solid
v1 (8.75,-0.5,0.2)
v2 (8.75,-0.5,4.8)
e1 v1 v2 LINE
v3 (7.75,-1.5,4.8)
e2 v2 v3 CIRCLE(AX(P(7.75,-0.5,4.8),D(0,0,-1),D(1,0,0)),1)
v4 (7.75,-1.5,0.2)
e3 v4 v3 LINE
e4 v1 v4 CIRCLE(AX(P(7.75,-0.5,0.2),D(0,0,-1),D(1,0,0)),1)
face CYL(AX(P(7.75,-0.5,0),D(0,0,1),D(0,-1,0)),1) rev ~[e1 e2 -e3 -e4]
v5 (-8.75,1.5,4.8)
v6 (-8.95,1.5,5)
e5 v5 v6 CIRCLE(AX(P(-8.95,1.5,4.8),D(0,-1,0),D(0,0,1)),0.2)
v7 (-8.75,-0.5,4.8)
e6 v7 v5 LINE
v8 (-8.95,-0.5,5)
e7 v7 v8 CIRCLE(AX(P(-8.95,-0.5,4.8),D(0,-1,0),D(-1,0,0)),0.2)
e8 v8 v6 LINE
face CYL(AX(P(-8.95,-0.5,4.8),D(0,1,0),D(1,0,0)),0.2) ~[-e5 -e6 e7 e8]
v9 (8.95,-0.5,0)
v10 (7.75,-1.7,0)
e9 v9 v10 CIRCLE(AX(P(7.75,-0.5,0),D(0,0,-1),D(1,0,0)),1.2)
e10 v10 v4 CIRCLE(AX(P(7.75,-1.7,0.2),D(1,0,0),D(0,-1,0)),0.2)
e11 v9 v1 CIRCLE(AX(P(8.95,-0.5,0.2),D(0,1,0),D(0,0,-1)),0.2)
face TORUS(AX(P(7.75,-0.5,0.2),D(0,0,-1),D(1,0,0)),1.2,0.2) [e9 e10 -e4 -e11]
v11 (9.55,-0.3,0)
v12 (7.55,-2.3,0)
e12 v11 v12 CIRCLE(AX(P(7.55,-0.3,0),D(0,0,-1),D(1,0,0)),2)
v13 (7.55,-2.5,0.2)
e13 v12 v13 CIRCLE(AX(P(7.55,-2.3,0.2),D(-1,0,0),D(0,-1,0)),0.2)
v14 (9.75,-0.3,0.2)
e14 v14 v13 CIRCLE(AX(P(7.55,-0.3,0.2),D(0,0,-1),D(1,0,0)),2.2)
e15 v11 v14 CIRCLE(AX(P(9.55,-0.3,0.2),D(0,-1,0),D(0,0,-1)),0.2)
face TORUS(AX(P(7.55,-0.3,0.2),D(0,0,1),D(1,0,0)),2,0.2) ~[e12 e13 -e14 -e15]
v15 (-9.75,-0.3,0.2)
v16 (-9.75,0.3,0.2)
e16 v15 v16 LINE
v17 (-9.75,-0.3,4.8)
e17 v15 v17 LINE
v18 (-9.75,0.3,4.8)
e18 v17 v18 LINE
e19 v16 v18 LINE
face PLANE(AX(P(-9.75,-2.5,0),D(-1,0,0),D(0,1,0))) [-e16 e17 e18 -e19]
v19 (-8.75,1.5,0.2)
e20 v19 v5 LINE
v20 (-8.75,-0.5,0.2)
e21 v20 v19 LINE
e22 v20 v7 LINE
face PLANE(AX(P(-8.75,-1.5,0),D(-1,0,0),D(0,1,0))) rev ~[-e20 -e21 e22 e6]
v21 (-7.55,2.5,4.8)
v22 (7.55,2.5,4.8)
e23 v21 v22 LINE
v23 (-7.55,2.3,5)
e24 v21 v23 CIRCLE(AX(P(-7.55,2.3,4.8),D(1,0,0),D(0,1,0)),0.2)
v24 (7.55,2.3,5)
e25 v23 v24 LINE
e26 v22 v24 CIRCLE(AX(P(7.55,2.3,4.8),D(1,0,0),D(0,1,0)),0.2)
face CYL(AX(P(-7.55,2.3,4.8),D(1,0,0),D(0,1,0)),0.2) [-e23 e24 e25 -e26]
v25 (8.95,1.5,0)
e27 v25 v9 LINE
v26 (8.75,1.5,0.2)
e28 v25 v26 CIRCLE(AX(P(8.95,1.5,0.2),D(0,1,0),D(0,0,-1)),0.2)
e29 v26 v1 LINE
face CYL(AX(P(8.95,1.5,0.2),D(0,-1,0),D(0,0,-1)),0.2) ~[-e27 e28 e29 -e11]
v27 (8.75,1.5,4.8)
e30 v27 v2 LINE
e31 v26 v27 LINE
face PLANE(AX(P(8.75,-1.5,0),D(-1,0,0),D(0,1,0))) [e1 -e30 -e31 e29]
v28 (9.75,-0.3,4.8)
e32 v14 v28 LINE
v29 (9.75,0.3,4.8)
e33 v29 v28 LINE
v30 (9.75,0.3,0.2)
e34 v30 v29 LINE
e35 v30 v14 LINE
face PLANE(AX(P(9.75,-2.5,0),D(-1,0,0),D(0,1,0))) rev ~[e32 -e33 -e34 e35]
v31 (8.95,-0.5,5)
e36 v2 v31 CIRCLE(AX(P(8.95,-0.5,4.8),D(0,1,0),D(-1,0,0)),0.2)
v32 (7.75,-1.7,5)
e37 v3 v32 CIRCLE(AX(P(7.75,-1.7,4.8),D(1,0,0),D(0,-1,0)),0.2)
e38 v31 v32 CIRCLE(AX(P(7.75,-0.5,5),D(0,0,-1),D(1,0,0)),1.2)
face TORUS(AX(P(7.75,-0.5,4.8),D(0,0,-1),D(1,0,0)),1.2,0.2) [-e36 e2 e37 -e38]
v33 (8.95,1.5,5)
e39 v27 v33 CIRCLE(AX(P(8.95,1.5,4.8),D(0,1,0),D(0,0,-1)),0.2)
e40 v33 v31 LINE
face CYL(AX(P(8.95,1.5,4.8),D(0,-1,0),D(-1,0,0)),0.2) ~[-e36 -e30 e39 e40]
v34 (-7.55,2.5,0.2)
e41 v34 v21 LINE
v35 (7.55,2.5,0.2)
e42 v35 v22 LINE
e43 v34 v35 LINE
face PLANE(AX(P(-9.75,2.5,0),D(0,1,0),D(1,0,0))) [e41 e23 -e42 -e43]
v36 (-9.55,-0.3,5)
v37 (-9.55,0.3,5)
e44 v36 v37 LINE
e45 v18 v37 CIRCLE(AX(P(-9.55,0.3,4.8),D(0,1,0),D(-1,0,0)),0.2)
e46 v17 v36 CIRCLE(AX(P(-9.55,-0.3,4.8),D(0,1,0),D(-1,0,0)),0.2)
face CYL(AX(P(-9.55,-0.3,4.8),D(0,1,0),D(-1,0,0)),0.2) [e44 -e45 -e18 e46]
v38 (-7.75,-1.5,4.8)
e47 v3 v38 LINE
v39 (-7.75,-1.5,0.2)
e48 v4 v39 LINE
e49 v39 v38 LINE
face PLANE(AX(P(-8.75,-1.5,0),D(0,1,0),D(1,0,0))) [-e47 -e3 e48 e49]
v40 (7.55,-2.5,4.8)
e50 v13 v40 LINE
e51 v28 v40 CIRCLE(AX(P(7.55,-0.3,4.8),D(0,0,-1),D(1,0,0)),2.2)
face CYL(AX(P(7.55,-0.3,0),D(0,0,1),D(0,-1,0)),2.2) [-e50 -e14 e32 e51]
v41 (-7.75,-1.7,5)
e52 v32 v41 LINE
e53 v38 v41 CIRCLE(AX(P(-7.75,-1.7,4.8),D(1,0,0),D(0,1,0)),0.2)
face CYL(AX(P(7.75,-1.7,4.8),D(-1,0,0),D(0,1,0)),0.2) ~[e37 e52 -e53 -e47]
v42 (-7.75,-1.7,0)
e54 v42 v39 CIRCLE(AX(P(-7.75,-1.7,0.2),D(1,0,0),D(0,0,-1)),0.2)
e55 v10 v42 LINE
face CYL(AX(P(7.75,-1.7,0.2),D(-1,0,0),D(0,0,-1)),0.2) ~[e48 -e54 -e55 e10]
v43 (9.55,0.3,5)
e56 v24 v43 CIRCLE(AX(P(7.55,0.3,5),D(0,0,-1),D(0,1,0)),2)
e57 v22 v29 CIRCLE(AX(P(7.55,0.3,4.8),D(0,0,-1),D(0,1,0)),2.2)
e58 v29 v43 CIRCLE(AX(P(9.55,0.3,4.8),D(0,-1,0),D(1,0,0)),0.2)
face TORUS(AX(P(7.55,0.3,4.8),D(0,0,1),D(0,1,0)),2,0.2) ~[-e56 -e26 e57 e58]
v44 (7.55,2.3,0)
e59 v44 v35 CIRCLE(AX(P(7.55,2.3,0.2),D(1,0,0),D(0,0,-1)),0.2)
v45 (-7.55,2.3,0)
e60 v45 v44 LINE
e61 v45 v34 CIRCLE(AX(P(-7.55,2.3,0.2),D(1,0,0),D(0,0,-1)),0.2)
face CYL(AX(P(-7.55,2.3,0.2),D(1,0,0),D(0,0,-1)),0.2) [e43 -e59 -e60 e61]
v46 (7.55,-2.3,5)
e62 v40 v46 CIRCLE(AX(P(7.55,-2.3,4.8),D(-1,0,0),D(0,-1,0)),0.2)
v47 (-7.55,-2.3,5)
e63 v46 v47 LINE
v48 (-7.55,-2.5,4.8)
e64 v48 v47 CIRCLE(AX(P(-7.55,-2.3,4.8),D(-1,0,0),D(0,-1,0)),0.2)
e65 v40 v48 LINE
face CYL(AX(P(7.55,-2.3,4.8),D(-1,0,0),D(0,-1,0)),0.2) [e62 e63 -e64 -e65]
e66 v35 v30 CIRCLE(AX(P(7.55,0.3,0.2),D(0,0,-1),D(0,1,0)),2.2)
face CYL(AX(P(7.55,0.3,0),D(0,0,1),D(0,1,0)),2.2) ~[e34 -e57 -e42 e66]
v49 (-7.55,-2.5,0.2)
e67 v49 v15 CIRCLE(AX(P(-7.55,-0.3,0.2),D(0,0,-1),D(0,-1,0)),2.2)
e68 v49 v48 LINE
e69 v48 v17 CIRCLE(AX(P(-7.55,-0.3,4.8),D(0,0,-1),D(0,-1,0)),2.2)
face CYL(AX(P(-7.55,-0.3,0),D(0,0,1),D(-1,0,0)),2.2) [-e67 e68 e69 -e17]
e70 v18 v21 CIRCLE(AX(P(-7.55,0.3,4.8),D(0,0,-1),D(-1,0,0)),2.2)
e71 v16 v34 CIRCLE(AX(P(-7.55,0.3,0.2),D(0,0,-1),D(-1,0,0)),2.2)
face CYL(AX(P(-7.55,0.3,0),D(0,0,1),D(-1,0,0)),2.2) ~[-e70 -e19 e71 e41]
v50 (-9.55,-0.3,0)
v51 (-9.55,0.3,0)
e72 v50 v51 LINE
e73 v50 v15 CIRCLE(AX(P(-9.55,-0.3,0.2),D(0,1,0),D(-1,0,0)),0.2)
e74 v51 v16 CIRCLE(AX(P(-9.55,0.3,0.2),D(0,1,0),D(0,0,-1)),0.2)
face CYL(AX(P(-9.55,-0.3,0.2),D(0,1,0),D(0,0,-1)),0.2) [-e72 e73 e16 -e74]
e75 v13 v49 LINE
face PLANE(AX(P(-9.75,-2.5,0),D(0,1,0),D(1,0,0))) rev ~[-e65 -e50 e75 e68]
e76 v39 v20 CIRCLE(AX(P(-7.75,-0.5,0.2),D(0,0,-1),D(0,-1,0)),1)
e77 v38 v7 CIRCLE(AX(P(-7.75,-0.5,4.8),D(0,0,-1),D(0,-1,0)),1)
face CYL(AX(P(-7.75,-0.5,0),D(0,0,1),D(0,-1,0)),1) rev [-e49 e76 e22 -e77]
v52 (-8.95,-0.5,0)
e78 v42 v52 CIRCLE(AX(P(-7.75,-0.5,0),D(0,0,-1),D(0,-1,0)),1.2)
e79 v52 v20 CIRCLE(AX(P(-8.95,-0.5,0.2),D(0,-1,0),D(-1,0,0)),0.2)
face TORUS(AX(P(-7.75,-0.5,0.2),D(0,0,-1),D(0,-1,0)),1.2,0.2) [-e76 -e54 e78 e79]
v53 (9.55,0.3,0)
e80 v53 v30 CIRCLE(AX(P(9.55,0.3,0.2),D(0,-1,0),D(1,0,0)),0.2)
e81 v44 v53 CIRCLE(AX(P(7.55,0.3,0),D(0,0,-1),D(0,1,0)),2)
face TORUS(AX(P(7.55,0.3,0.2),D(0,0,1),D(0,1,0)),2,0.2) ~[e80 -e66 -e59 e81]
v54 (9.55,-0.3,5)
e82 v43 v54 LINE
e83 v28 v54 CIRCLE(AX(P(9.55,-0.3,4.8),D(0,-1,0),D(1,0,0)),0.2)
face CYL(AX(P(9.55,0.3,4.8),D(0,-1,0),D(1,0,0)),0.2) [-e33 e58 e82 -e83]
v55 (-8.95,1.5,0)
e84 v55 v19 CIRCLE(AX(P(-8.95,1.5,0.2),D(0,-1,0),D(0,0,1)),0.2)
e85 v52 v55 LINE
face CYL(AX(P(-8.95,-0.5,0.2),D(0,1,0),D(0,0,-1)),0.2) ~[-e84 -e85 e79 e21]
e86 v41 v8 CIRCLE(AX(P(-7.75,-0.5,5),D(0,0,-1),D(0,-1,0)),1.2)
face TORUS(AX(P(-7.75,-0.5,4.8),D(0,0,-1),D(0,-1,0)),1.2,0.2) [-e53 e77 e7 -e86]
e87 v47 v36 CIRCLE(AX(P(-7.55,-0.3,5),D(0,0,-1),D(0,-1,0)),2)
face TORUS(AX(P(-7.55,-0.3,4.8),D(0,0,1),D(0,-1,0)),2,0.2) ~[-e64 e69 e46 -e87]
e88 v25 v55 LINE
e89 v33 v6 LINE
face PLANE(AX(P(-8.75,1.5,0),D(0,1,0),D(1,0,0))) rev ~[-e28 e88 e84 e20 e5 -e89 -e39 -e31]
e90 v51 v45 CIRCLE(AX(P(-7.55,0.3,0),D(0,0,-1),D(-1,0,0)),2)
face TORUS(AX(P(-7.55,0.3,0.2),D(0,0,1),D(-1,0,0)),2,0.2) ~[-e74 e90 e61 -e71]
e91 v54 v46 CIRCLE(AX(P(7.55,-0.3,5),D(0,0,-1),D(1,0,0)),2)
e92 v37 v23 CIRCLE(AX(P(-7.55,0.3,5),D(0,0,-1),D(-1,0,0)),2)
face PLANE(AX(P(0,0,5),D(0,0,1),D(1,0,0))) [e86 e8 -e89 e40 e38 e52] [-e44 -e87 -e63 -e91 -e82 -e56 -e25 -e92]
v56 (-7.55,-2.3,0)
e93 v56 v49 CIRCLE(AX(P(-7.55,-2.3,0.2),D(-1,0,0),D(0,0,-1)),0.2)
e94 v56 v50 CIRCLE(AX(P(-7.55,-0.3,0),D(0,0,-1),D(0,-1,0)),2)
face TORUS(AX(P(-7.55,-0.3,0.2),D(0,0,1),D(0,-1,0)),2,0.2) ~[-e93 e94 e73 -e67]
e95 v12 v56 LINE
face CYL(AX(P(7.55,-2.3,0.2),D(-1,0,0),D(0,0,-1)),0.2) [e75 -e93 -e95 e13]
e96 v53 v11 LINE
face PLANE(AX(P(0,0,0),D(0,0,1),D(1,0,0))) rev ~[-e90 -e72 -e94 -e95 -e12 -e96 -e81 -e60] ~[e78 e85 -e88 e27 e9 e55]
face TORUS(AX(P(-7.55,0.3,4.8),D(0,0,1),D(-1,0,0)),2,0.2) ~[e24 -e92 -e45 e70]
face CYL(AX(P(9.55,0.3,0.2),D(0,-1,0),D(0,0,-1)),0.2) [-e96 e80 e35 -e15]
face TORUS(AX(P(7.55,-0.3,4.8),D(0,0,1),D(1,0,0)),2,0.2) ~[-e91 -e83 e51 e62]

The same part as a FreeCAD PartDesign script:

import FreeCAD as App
import Part
import Sketcher
from FreeCAD import Vector


def edges_at(feature, points):
    """Names of the edges that pass closest to the given points."""
    edges = feature.Shape.Edges
    near = lambda p: min(range(len(edges)), key=lambda i: edges[i].distToShape(Part.Vertex(*p))[0])
    return sorted({f"Edge{near(p) + 1}" for p in points})


def add_polygon(sketch, points):
    """Adds a closed chain of lines whose ends are joined by coincident constraints."""
    first, n = sketch.GeometryCount, len(points)
    for a, b in zip(points, points[1:] + points[:1]):
        sketch.addGeometry(Part.LineSegment(App.Vector(*a, 0), App.Vector(*b, 0)), False)
    for i in range(n):
        sketch.addConstraint(Sketcher.Constraint("Coincident", first + i, 2, first + (i + 1) % n, 1))

doc = App.newDocument("Part")
params = doc.addObject("Spreadsheet::Sheet", "Params")
for row, (alias, value) in enumerate([
    ("sketch1_height", "5 mm"),
    ("sketch1_height2", "3 mm"),
    ("sketch1_width", "19.5 mm"),
    ("sketch1_width2", "17.5 mm"),
    ("pad1_length", "5 mm"),
    ("fillet_radius", "2.2 mm"),
    ("fillet2_radius", "1 mm"),
    ("fillet3_radius", "0.2 mm"),
], start=1):
    params.set(f"A{row}", alias)
    params.set(f"B{row}", "=" + value)
    params.setAlias(f"B{row}", alias)

body = doc.addObject("PartDesign::Body", "Body")

# Sketch on XY plane
sketch1 = body.newObject("Sketcher::SketchObject", "Sketch")
sketch1.AttachmentSupport = (doc.getObject("XY_Plane"), [""])
sketch1.MapMode = "FlatFace"
add_polygon(sketch1, [(-9.8, 2.5), (-9.8, -2.5), (9.8, -2.5), (9.8, 2.5)])  # lines 0-3
add_polygon(sketch1, [(8.8, -1.5), (-8.8, -1.5), (-8.8, 1.5), (8.8, 1.5)])  # lines 4-7
sketch1.addConstraint([
    Sketcher.Constraint("Vertical", 0),
    Sketcher.Constraint("Horizontal", 1),
    Sketcher.Constraint("Vertical", 2),
    Sketcher.Constraint("Horizontal", 3),
    Sketcher.Constraint("Horizontal", 4),
    Sketcher.Constraint("Vertical", 5),
    Sketcher.Constraint("Horizontal", 6),
    Sketcher.Constraint("Vertical", 7),
    Sketcher.Constraint("Symmetric", 0, 2, 2, 2, -1, 1),
    Sketcher.Constraint("Symmetric", 4, 2, 6, 2, -1, 1),
    Sketcher.Constraint("DistanceY", 0, 2, 0, 1, 5.0),
    Sketcher.Constraint("DistanceY", 5, 1, 5, 2, 3.0),
    Sketcher.Constraint("DistanceX", 1, 1, 1, 2, 19.5),
    Sketcher.Constraint("DistanceX", 4, 2, 4, 1, 17.5),
])
sketch1.setExpression("Constraints[18]", "Params.sketch1_height")
sketch1.setExpression("Constraints[19]", "Params.sketch1_height2")
sketch1.setExpression("Constraints[20]", "Params.sketch1_width")
sketch1.setExpression("Constraints[21]", "Params.sketch1_width2")
pad1 = body.newObject("PartDesign::Pad", "Pad")
pad1.Profile = sketch1
pad1.setExpression("Length", "Params.pad1_length")
doc.recompute()

fillet = body.newObject("PartDesign::Fillet", "Fillet")
fillet.Base = (pad1, edges_at(pad1, [
    (-9.75, 2.5, 2.5),
    (9.75, 2.5, 2.5),
    (9.75, -2.5, 2.5),
    (-9.75, -2.5, 2.5),
]))
fillet.setExpression("Radius", "Params.fillet_radius")
doc.recompute()

fillet2 = body.newObject("PartDesign::Fillet", "Fillet001")
fillet2.Base = (fillet, edges_at(fillet, [(8.75, -1.5, 2.5), (-8.75, -1.5, 2.5)]))
fillet2.setExpression("Radius", "Params.fillet2_radius")
doc.recompute()

fillet3 = body.newObject("PartDesign::Fillet", "Fillet002")
fillet3.Base = (fillet2, edges_at(fillet2, [
    (-8.75, 0.5, 0),
    (-8.75, 0.5, 5),
    (0, 2.5, 0),
    (0, 2.5, 5),
    (-9.75, 0, 0),
    (9.75, 0, 0),
    (0, -2.5, 0),
    (9.106, -1.856, 0),
    (-9.106, -1.856, 0),
    (-9.106, 1.856, 0),
    (9.106, 1.856, 0),
    (9.75, 0, 5),
    (-9.75, 0, 5),
    (0, -2.5, 5),
    (9.106, -1.856, 5),
    (-9.106, -1.856, 5),
    (-9.106, 1.856, 5),
    (9.106, 1.856, 5),
    (0, -1.5, 0),
    (0, -1.5, 5),
    (8.75, 0.5, 0),
    (8.75, 0.5, 5),
    (-8.457, -1.207, 0),
    (-8.457, -1.207, 5),
    (8.457, -1.207, 0),
    (8.457, -1.207, 5),
]))
fillet3.setExpression("Radius", "Params.fillet3_radius")

doc.recompute()
